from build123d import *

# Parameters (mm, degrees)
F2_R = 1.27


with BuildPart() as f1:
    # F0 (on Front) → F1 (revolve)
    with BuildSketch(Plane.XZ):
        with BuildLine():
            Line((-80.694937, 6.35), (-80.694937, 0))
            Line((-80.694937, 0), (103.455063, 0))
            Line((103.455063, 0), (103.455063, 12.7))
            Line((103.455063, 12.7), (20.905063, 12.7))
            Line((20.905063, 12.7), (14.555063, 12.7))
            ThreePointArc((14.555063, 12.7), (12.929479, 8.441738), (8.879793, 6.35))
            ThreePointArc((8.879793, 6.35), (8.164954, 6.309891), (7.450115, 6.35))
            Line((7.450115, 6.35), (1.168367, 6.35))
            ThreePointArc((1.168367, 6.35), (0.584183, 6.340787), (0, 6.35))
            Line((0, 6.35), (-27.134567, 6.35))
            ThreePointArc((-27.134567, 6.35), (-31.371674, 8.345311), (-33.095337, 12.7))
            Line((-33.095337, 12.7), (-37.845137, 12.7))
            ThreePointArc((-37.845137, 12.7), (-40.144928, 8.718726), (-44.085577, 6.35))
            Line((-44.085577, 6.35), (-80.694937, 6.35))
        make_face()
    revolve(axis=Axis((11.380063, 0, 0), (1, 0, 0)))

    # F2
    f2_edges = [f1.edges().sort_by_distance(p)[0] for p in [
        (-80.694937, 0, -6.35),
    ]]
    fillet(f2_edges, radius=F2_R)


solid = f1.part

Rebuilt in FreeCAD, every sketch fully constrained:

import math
import FreeCAD as App
import Part
import Sketcher

V = App.Vector
Q = App.Units.Quantity


def edges_at(feature, points):
    """Names of the edges that pass closest to the given points."""
    edges = feature.Shape.Edges
    near = lambda p: min(range(len(edges)), key=lambda i: edges[i].distToShape(Part.Vertex(*p))[0])
    return sorted({f"Edge{near(p) + 1}" for p in points})

doc = App.newDocument("Part")
body = doc.addObject("PartDesign::Body", "Body")

sketch1 = doc.addObject("Sketcher::SketchObject", "Sketch")
body.addObject(sketch1)
sketch1.AttachmentSupport = (doc.XZ_Plane, [""])
sketch1.MapMode = "FlatFace"
sketch1.addGeometry([
    Part.LineSegment(V(-80.694937, 6.35, 0), V(-80.694937, 0, 0)),
    Part.LineSegment(V(-80.694937, 0, 0), V(103.455063, 0, 0)),
    Part.LineSegment(V(103.455063, 0, 0), V(103.455063, 12.7, 0)),
    Part.LineSegment(V(103.455063, 12.7, 0), V(14.555063, 12.7, 0)),
    Part.ArcOfCircle(Part.Circle(V(8.164954, 12.7, 0), V(0, 0, 1), 6.390109), math.radians(-83.577078), math.radians(0)),
    Part.ArcOfCircle(Part.Circle(V(8.164954, 12.700022, 0), V(0, 0, 1), 6.390131), math.radians(-96.422899), math.radians(-83.577101)),
    Part.LineSegment(V(7.450115, 6.35, 0), V(1.168367, 6.35, 0)),
    Part.ArcOfCircle(Part.Circle(V(0.584183, 24.866525, 0), V(0, 0, 1), 18.525738), math.radians(-91.807043), math.radians(-88.192957)),
    Part.LineSegment(V(0, 6.35, 0), V(-27.134567, 6.35, 0)),
    Part.ArcOfCircle(Part.Circle(V(-26.732629, 12.7, 0), V(0, 0, 1), 6.362708), math.radians(179.999997), math.radians(266.378164)),
    Part.LineSegment(V(-33.095337, 12.7, 0), V(-37.845137, 12.7, 0)),
    Part.ArcOfCircle(Part.Circle(V(-46.69865, 15.159373, 0), V(0, 0, 1), 9.188754), math.radians(-73.478372), math.radians(-15.524496)),
    Part.LineSegment(V(-44.085577, 6.35, 0), V(-80.694937, 6.35, 0)),
], False)
sketch1.addConstraint([
    Sketcher.Constraint("Coincident", 0, 2, 1, 1),
    Sketcher.Constraint("Coincident", 1, 2, 2, 1),
    Sketcher.Constraint("Coincident", 2, 2, 3, 1),
    Sketcher.Constraint("Coincident", 3, 2, 4, 2),
    Sketcher.Constraint("Coincident", 4, 1, 5, 2),
    Sketcher.Constraint("Coincident", 5, 1, 6, 1),
    Sketcher.Constraint("Coincident", 6, 2, 7, 2),
    Sketcher.Constraint("Coincident", 7, 1, 8, 1),
    Sketcher.Constraint("Coincident", 8, 2, 9, 2),
    Sketcher.Constraint("Coincident", 9, 1, 10, 1),
    Sketcher.Constraint("Coincident", 10, 2, 11, 2),
    Sketcher.Constraint("Coincident", 11, 1, 12, 1),
    Sketcher.Constraint("Coincident", 12, 2, 0, 1),
    Sketcher.Constraint("Vertical", 0),
    Sketcher.Constraint("Horizontal", 1),
    Sketcher.Constraint("Vertical", 2),
    Sketcher.Constraint("Horizontal", 3),
    Sketcher.Constraint("Horizontal", 6),
    Sketcher.Constraint("Horizontal", 8),
    Sketcher.Constraint("Horizontal", 10),
    Sketcher.Constraint("Horizontal", 12),
    Sketcher.Constraint("PointOnObject", 0, 2, -1),
    Sketcher.Constraint("PointOnObject", 7, 1, -2),
    Sketcher.Constraint("DistanceX", 3, 2, 3, 1, Q("3.5 in")),
    Sketcher.Constraint("DistanceY", 2, 1, 2, 2, Q("0.5 in")),
    Sketcher.Constraint("DistanceX", 1, 1, 1, 2, Q("7.25 in")),
    Sketcher.Constraint("DistanceY", 0, 2, 0, 1, Q("0.25 in")),
    Sketcher.Constraint("DistanceY", -1, 1, 4, 3, Q("0.5 in")),
    Sketcher.Constraint("DistanceY", -1, 1, 9, 3, Q("0.5 in")),
    Sketcher.Constraint("DistanceY", -1, 1, 9, 1, Q("0.5 in")),
    Sketcher.Constraint("DistanceX", 10, 2, 10, 1, Q("0.187 in")),
    Sketcher.Constraint("DistanceY", -1, 1, 4, 1, Q("0.25 in")),
    Sketcher.Constraint("DistanceY", -1, 1, 5, 1, Q("0.25 in")),
    Sketcher.Constraint("DistanceY", -1, 1, 7, 1, Q("0.25 in")),
    Sketcher.Constraint("Radius", 4, Q("6.390109 mm")),
    Sketcher.Constraint("Radius", 5, Q("6.390131 mm")),
    Sketcher.Constraint("DistanceX", 12, 2, 10, 2, Q("1.687 in")),
    Sketcher.Constraint("Radius", 7, Q("18.525738 mm")),
    Sketcher.Constraint("Radius", 9, Q("6.362708 mm")),
    Sketcher.Constraint("Radius", 11, Q("9.188754 mm")),
    Sketcher.Constraint("DistanceX", 6, 2, 6, 1, Q("6.281748 mm")),
    Sketcher.Constraint("DistanceX", 12, 2, 12, 1, Q("36.60936 mm")),
    Sketcher.Constraint("DistanceX", 8, 2, 8, 1, Q("27.134567 mm")),
    Sketcher.Constraint("DistanceY", -1, 1, 5, 3, Q("12.700022 mm")),
])
revolution = doc.addObject("PartDesign::Revolution", "Revolution")
body.addObject(revolution)
revolution.Profile = sketch1
revolution.ReferenceAxis = (sketch1, ["H_Axis"])
revolution.Angle = 360
doc.recompute()

fillet = doc.addObject("PartDesign::Fillet", "Fillet")
body.addObject(fillet)
fillet.Base = (revolution, edges_at(revolution, [(-80.695, 0, -6.35)]))
fillet.Radius = Q("0.05 in")

doc.recompute()
